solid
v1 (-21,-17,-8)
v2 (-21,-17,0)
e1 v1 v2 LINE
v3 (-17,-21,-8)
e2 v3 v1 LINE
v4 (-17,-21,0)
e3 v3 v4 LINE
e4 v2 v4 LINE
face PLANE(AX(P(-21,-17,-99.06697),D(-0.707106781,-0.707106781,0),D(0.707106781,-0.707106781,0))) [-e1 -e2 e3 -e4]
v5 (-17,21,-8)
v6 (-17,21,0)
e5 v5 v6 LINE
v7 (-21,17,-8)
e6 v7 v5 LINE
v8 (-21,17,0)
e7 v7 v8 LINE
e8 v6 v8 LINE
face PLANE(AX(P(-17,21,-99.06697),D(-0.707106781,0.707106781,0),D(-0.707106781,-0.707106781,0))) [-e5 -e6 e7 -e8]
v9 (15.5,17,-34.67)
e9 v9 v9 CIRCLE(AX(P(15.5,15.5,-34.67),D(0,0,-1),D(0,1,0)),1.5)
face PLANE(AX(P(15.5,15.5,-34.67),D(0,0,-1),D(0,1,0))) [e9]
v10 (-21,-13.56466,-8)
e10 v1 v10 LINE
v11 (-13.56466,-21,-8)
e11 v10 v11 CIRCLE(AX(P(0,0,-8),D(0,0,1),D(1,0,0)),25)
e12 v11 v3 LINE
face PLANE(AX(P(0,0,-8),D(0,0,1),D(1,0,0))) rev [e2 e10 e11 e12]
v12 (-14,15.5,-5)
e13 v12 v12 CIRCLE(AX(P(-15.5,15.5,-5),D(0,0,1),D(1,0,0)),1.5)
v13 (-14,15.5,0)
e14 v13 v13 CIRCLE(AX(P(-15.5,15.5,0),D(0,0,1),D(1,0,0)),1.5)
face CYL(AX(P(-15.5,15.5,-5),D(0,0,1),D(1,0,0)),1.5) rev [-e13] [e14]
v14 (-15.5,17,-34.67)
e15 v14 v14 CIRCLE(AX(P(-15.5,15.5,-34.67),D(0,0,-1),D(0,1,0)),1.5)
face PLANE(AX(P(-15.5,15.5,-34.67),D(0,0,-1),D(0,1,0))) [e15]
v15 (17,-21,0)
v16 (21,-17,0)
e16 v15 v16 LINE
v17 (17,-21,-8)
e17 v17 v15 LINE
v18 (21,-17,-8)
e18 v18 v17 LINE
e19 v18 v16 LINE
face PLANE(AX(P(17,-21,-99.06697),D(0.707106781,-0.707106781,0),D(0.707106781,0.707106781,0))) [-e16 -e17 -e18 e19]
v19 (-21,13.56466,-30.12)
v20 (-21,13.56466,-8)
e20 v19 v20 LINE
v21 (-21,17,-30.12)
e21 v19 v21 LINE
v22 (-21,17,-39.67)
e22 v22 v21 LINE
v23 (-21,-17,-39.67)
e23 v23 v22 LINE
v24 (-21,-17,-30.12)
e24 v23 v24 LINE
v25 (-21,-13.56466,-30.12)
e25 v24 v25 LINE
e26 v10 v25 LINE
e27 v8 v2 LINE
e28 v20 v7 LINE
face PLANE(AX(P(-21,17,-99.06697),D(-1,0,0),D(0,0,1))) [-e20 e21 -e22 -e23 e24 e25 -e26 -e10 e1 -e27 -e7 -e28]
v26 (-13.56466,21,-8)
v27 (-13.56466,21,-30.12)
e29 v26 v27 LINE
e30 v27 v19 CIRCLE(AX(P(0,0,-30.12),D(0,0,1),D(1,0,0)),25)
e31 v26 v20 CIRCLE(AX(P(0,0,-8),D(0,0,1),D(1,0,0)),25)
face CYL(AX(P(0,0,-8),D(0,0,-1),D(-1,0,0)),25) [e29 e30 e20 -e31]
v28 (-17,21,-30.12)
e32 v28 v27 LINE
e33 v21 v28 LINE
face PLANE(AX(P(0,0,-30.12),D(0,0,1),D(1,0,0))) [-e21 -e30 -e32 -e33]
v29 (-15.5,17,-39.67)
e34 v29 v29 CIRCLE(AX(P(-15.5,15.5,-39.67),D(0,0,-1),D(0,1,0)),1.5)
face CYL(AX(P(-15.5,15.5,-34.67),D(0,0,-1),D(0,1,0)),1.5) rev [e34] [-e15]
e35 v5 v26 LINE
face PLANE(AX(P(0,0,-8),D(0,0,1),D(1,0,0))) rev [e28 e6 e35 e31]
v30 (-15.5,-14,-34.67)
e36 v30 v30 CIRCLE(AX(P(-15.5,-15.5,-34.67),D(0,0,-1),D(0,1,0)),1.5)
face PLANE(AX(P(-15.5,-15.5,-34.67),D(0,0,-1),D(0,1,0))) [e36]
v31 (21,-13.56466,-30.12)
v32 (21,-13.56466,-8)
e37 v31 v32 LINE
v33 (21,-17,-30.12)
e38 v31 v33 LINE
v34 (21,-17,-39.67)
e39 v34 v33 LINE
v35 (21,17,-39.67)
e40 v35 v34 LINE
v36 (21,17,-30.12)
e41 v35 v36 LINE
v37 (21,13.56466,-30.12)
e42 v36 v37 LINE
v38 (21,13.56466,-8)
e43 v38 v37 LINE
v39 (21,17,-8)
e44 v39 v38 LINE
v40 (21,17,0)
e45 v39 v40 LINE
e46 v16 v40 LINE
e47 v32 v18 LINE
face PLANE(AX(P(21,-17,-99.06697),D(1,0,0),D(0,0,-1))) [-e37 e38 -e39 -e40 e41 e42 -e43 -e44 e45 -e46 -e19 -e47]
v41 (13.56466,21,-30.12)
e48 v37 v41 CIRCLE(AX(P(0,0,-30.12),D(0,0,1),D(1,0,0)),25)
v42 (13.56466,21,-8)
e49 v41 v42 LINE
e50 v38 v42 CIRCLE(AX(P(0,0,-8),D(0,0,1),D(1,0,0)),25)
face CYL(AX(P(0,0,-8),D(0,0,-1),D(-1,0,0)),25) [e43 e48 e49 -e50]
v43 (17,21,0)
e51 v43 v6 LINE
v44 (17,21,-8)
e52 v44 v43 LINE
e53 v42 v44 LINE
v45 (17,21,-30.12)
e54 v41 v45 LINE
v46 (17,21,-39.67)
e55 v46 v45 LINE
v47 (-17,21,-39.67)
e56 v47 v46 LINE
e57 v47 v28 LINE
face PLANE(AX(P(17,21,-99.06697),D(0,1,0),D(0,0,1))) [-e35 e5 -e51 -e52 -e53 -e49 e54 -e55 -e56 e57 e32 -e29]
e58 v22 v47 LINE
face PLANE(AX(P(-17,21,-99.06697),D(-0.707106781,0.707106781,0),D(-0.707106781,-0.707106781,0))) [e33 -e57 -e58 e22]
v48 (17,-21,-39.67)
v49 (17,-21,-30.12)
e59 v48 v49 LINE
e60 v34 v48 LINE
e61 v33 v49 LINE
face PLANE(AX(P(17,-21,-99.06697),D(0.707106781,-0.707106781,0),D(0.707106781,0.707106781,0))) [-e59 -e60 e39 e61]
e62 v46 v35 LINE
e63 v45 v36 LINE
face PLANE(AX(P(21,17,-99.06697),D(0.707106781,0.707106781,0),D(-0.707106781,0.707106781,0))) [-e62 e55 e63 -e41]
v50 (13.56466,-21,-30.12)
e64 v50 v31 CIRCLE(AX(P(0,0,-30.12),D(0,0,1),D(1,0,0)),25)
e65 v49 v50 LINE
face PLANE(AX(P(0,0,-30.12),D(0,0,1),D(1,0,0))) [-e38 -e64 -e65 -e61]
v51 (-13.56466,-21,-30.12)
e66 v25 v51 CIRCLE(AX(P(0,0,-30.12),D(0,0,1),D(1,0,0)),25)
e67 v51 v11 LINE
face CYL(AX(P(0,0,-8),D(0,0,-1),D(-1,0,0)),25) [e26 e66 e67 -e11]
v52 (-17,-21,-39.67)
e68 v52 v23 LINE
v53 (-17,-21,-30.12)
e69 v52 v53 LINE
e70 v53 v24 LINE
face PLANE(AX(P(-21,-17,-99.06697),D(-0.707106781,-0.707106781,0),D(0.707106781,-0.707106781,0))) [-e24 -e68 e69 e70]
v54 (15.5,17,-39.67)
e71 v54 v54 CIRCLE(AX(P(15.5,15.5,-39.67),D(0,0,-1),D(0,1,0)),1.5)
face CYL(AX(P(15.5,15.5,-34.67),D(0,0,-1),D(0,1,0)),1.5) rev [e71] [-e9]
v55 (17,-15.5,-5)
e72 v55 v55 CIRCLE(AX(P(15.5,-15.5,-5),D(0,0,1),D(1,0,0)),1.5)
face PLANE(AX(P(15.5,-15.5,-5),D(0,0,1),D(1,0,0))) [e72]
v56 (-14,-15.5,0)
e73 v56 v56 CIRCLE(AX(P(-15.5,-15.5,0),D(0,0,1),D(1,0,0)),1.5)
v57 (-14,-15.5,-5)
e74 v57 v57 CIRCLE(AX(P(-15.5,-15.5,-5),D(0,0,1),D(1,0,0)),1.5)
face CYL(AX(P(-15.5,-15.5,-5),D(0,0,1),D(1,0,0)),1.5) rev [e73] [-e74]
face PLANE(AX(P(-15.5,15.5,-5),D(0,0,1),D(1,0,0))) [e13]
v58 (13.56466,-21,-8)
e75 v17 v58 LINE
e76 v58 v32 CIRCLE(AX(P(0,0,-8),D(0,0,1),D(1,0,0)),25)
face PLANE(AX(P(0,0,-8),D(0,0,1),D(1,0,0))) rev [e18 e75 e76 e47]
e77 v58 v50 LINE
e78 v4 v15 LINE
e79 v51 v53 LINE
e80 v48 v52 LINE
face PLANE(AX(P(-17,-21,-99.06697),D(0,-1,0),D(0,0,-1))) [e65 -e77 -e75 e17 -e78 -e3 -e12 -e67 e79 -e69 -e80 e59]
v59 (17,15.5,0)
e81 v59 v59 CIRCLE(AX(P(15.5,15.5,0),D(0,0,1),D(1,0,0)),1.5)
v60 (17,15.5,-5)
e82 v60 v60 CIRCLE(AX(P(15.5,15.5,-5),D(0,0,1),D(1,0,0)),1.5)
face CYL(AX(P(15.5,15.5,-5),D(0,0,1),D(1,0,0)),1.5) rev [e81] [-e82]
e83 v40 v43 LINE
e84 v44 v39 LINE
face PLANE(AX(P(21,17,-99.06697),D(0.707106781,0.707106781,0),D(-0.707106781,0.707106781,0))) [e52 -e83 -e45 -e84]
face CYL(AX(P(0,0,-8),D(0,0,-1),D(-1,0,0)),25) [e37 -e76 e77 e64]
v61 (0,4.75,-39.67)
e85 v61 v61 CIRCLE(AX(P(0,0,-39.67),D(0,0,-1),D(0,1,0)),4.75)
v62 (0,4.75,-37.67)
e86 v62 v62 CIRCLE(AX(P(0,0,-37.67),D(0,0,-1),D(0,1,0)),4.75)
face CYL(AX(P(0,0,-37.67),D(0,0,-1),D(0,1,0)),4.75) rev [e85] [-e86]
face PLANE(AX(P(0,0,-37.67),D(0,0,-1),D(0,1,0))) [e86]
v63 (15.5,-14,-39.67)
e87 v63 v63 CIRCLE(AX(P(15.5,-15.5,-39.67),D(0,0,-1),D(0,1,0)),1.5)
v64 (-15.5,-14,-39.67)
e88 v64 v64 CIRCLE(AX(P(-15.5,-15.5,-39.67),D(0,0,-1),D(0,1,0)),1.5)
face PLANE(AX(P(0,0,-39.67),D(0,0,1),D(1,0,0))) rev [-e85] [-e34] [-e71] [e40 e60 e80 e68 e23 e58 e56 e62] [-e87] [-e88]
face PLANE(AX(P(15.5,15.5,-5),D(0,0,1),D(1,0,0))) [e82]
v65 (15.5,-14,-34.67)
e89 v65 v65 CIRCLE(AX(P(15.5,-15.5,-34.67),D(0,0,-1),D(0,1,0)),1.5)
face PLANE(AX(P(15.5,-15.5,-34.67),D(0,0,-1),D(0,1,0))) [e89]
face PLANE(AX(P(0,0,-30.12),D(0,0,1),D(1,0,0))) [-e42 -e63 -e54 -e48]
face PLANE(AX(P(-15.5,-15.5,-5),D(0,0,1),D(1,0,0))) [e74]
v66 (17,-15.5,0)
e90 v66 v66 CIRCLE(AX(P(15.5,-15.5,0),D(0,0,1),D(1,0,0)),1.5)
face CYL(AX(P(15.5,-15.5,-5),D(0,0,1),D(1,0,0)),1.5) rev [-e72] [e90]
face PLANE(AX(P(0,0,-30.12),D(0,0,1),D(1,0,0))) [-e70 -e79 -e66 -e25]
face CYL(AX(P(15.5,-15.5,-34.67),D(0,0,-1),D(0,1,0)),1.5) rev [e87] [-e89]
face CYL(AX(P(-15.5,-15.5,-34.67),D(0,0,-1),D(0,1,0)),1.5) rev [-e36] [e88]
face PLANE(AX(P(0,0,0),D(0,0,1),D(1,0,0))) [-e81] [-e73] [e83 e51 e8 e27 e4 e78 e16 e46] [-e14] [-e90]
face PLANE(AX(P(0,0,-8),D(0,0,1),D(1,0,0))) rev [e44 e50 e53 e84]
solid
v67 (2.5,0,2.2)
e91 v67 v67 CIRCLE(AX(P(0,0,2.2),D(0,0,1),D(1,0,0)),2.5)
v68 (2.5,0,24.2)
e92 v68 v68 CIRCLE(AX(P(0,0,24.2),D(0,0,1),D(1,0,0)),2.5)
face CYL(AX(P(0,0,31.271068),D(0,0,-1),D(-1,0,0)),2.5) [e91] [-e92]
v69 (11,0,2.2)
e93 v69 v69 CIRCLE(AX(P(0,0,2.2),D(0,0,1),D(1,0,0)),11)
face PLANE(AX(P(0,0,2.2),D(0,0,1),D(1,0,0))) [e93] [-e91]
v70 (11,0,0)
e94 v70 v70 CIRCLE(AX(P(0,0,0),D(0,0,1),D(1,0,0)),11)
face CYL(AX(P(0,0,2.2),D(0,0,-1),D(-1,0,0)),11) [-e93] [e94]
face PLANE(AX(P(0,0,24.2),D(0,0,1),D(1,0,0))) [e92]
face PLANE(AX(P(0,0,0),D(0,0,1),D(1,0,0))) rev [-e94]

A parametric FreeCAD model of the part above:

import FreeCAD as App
import Part
import Sketcher
from FreeCAD import Vector
Q = App.Units.Quantity

doc = App.newDocument("Part")
body = doc.addObject("PartDesign::Body", "Body")

sketch1 = body.newObject("Sketcher::SketchObject", "Sketch")
sketch1.AttachmentSupport = (doc.getObject("XY_Plane"), [""])
sketch1.MapMode = "FlatFace"
sketch1.addGeometry([
    Part.LineSegment(Vector(17, -21, 0), Vector(21, -17, 0)),
    Part.LineSegment(Vector(21, -17, 0), Vector(21, 17, 0)),
    Part.LineSegment(Vector(21, 17, 0), Vector(17, 21, 0)),
    Part.LineSegment(Vector(17, 21, 0), Vector(-17, 21, 0)),
    Part.LineSegment(Vector(-17, 21, 0), Vector(-21, 17, 0)),
    Part.LineSegment(Vector(-21, 17, 0), Vector(-21, -17, 0)),
    Part.LineSegment(Vector(-21, -17, 0), Vector(-17, -21, 0)),
    Part.LineSegment(Vector(-17, -21, 0), Vector(17, -21, 0)),
], False)
sketch1.addConstraint([
    Sketcher.Constraint("Coincident", 0, 2, 1, 1),
    Sketcher.Constraint("Coincident", 1, 2, 2, 1),
    Sketcher.Constraint("Coincident", 2, 2, 3, 1),
    Sketcher.Constraint("Coincident", 3, 2, 4, 1),
    Sketcher.Constraint("Coincident", 4, 2, 5, 1),
    Sketcher.Constraint("Coincident", 5, 2, 6, 1),
    Sketcher.Constraint("Coincident", 6, 2, 7, 1),
    Sketcher.Constraint("Coincident", 7, 2, 0, 1),
    Sketcher.Constraint("Vertical", 1),
    Sketcher.Constraint("Horizontal", 3),
    Sketcher.Constraint("Vertical", 5),
    Sketcher.Constraint("Horizontal", 7),
    Sketcher.Constraint("Symmetric", 0, 2, 4, 2, -1, 1),
    Sketcher.Constraint("Symmetric", 2, 2, 6, 2, -1, 1),
    Sketcher.Constraint("Perpendicular", 0, 2),
    Sketcher.Constraint("Perpendicular", 2, 4),
    Sketcher.Constraint("Perpendicular", 4, 6),
    Sketcher.Constraint("Horizontal", 1, 2, 4, 2),
    Sketcher.Constraint("Vertical", 3, 2, 6, 2),
    Sketcher.Constraint("Equal", 7, 1),
    Sketcher.Constraint("DistanceX", 3, 2, 3, 1, Q("34 mm")),
    Sketcher.Constraint("DistanceX", -1, 1, 0, 2, Q("21 mm")),
])
pad1 = body.newObject("PartDesign::Pad", "Pad")
pad1.Profile = sketch1
pad1.Length = 39.67
pad1.Reversed = True

sketch2 = body.newObject("Sketcher::SketchObject", "Sketch001")
sketch2.AttachmentSupport = (doc.getObject("XY_Plane"), [""])
sketch2.MapMode = "FlatFace"
sketch2.AttachmentOffset = App.Placement(Vector(0, 0, -30.12), App.Rotation())
sketch2.addGeometry([
    Part.LineSegment(Vector(-29, 29, 0), Vector(-29, -29, 0)),
    Part.LineSegment(Vector(-29, -29, 0), Vector(29, -29, 0)),
    Part.LineSegment(Vector(29, -29, 0), Vector(29, 29, 0)),
    Part.LineSegment(Vector(29, 29, 0), Vector(-29, 29, 0)),
    Part.Circle(Vector(0, 0, 0), Vector(0, 0, 1), 25),
], False)
sketch2.addConstraint([
    Sketcher.Constraint("Coincident", 0, 2, 1, 1),
    Sketcher.Constraint("Coincident", 1, 2, 2, 1),
    Sketcher.Constraint("Coincident", 2, 2, 3, 1),
    Sketcher.Constraint("Coincident", 3, 2, 0, 1),
    Sketcher.Constraint("Vertical", 0),
    Sketcher.Constraint("Horizontal", 1),
    Sketcher.Constraint("Vertical", 2),
    Sketcher.Constraint("Horizontal", 3),
    Sketcher.Constraint("Coincident", 4, 3, -1, 1),
    Sketcher.Constraint("Symmetric", 0, 2, 2, 2, -1, 1),
    Sketcher.Constraint("Equal", 3, 0),
    Sketcher.Constraint("Diameter", 4, Q("50 mm")),
    Sketcher.Constraint("DistanceX", 1, 1, 1, 2, Q("58.286 mm")),
])
pocket1 = body.newObject("PartDesign::Pocket", "Pocket")
pocket1.Profile = sketch2
pocket1.Length = 22.12
pocket1.Reversed = True

sketch3 = body.newObject("Sketcher::SketchObject", "Sketch002")
sketch3.AttachmentSupport = (doc.getObject("XY_Plane"), [""])
sketch3.MapMode = "FlatFace"
sketch3.AttachmentOffset = App.Placement(Vector(0, 0, -39.67), App.Rotation())
sketch3.addGeometry([
    Part.Circle(Vector(-15.5, 15.5, 0), Vector(0, 0, 1), 1.5),
    Part.Circle(Vector(-15.5, -15.5, 0), Vector(0, 0, 1), 1.5),
    Part.Circle(Vector(15.5, -15.5, 0), Vector(0, 0, 1), 1.5),
    Part.Circle(Vector(15.5, 15.5, 0), Vector(0, 0, 1), 1.5),
], False)
sketch3.addConstraint([
    Sketcher.Constraint("Equal", 0, 1),
    Sketcher.Constraint("Equal", 1, 2),
    Sketcher.Constraint("Equal", 2, 3),
    Sketcher.Constraint("Symmetric", 0, 3, 2, 3, -1, 1),
    Sketcher.Constraint("Symmetric", 1, 3, 3, 3, -1, 1),
    Sketcher.Constraint("Symmetric", 1, 3, 2, 3, -2),
    Sketcher.Constraint("Diameter", 0, Q("3 mm")),
    Sketcher.Constraint("DistanceY", 1, 3, 0, 3, Q("31 mm")),
    Sketcher.Constraint("DistanceX", 1, 3, 2, 3, Q("31 mm")),
])
pocket2 = body.newObject("PartDesign::Pocket", "Pocket001")
pocket2.Profile = sketch3
pocket2.Length = 5
pocket2.Reversed = True

sketch4 = body.newObject("Sketcher::SketchObject", "Sketch003")
sketch4.AttachmentSupport = (doc.getObject("XY_Plane"), [""])
sketch4.MapMode = "FlatFace"
sketch4.AttachmentOffset = App.Placement(Vector(0, 0, -39.67), App.Rotation())
sketch4.addGeometry(Part.Circle(Vector(0, 0, 0), Vector(0, 0, 1), 4.8), False)
sketch4.addConstraint([
    Sketcher.Constraint("Coincident", 0, 3, -1, 1),
    Sketcher.Constraint("Diameter", 0, Q("9.5 mm")),
])
pocket3 = body.newObject("PartDesign::Pocket", "Pocket002")
pocket3.Profile = sketch4
pocket3.Length = 2
pocket3.Reversed = True

sketch5 = body.newObject("Sketcher::SketchObject", "Sketch004")
sketch5.AttachmentSupport = (doc.getObject("XY_Plane"), [""])
sketch5.MapMode = "FlatFace"
sketch5.addGeometry([
    Part.Circle(Vector(15.5, 15.5, 0), Vector(0, 0, 1), 1.5),
    Part.Circle(Vector(-15.5, 15.5, 0), Vector(0, 0, 1), 1.5),
    Part.Circle(Vector(-15.5, -15.5, 0), Vector(0, 0, 1), 1.5),
    Part.Circle(Vector(15.5, -15.5, 0), Vector(0, 0, 1), 1.5),
], False)
sketch5.addConstraint([
    Sketcher.Constraint("Equal", 0, 1),
    Sketcher.Constraint("Equal", 1, 2),
    Sketcher.Constraint("Equal", 2, 3),
    Sketcher.Constraint("Symmetric", 0, 3, 2, 3, -1, 1),
    Sketcher.Constraint("Symmetric", 1, 3, 3, 3, -1, 1),
    Sketcher.Constraint("Symmetric", 0, 3, 1, 3, -2),
    Sketcher.Constraint("Diameter", 0, Q("3 mm")),
    Sketcher.Constraint("DistanceX", 1, 3, 0, 3, Q("31 mm")),
    Sketcher.Constraint("DistanceY", 2, 3, 1, 3, Q("31 mm")),
])
pocket4 = body.newObject("PartDesign::Pocket", "Pocket003")
pocket4.Profile = sketch5
pocket4.Length = 5
body2 = doc.addObject("PartDesign::Body", "Body001")

sketch6 = body2.newObject("Sketcher::SketchObject", "Sketch005")
sketch6.AttachmentSupport = (doc.getObject("XY_Plane001"), [""])
sketch6.MapMode = "FlatFace"
sketch6.addGeometry(Part.Circle(Vector(0, 0, 0), Vector(0, 0, 1), 11), False)
sketch6.addConstraint([
    Sketcher.Constraint("Coincident", 0, 3, -1, 1),
    Sketcher.Constraint("Diameter", 0, Q("22 mm")),
])
pad2 = body2.newObject("PartDesign::Pad", "Pad001")
pad2.Profile = sketch6
pad2.Length = 2.2

sketch7 = body2.newObject("Sketcher::SketchObject", "Sketch006")
sketch7.AttachmentSupport = (doc.getObject("XY_Plane001"), [""])
sketch7.MapMode = "FlatFace"
sketch7.AttachmentOffset = App.Placement(Vector(0, 0, 2.2), App.Rotation())
sketch7.addGeometry(Part.Circle(Vector(0, 0, 0), Vector(0, 0, 1), 2.5), False)
sketch7.addConstraint([
    Sketcher.Constraint("Coincident", 0, 3, -1, 1),
    Sketcher.Constraint("Diameter", 0, Q("5 mm")),
])
pad3 = body2.newObject("PartDesign::Pad", "Pad002")
pad3.Profile = sketch7
pad3.Length = 22

doc.recompute()
